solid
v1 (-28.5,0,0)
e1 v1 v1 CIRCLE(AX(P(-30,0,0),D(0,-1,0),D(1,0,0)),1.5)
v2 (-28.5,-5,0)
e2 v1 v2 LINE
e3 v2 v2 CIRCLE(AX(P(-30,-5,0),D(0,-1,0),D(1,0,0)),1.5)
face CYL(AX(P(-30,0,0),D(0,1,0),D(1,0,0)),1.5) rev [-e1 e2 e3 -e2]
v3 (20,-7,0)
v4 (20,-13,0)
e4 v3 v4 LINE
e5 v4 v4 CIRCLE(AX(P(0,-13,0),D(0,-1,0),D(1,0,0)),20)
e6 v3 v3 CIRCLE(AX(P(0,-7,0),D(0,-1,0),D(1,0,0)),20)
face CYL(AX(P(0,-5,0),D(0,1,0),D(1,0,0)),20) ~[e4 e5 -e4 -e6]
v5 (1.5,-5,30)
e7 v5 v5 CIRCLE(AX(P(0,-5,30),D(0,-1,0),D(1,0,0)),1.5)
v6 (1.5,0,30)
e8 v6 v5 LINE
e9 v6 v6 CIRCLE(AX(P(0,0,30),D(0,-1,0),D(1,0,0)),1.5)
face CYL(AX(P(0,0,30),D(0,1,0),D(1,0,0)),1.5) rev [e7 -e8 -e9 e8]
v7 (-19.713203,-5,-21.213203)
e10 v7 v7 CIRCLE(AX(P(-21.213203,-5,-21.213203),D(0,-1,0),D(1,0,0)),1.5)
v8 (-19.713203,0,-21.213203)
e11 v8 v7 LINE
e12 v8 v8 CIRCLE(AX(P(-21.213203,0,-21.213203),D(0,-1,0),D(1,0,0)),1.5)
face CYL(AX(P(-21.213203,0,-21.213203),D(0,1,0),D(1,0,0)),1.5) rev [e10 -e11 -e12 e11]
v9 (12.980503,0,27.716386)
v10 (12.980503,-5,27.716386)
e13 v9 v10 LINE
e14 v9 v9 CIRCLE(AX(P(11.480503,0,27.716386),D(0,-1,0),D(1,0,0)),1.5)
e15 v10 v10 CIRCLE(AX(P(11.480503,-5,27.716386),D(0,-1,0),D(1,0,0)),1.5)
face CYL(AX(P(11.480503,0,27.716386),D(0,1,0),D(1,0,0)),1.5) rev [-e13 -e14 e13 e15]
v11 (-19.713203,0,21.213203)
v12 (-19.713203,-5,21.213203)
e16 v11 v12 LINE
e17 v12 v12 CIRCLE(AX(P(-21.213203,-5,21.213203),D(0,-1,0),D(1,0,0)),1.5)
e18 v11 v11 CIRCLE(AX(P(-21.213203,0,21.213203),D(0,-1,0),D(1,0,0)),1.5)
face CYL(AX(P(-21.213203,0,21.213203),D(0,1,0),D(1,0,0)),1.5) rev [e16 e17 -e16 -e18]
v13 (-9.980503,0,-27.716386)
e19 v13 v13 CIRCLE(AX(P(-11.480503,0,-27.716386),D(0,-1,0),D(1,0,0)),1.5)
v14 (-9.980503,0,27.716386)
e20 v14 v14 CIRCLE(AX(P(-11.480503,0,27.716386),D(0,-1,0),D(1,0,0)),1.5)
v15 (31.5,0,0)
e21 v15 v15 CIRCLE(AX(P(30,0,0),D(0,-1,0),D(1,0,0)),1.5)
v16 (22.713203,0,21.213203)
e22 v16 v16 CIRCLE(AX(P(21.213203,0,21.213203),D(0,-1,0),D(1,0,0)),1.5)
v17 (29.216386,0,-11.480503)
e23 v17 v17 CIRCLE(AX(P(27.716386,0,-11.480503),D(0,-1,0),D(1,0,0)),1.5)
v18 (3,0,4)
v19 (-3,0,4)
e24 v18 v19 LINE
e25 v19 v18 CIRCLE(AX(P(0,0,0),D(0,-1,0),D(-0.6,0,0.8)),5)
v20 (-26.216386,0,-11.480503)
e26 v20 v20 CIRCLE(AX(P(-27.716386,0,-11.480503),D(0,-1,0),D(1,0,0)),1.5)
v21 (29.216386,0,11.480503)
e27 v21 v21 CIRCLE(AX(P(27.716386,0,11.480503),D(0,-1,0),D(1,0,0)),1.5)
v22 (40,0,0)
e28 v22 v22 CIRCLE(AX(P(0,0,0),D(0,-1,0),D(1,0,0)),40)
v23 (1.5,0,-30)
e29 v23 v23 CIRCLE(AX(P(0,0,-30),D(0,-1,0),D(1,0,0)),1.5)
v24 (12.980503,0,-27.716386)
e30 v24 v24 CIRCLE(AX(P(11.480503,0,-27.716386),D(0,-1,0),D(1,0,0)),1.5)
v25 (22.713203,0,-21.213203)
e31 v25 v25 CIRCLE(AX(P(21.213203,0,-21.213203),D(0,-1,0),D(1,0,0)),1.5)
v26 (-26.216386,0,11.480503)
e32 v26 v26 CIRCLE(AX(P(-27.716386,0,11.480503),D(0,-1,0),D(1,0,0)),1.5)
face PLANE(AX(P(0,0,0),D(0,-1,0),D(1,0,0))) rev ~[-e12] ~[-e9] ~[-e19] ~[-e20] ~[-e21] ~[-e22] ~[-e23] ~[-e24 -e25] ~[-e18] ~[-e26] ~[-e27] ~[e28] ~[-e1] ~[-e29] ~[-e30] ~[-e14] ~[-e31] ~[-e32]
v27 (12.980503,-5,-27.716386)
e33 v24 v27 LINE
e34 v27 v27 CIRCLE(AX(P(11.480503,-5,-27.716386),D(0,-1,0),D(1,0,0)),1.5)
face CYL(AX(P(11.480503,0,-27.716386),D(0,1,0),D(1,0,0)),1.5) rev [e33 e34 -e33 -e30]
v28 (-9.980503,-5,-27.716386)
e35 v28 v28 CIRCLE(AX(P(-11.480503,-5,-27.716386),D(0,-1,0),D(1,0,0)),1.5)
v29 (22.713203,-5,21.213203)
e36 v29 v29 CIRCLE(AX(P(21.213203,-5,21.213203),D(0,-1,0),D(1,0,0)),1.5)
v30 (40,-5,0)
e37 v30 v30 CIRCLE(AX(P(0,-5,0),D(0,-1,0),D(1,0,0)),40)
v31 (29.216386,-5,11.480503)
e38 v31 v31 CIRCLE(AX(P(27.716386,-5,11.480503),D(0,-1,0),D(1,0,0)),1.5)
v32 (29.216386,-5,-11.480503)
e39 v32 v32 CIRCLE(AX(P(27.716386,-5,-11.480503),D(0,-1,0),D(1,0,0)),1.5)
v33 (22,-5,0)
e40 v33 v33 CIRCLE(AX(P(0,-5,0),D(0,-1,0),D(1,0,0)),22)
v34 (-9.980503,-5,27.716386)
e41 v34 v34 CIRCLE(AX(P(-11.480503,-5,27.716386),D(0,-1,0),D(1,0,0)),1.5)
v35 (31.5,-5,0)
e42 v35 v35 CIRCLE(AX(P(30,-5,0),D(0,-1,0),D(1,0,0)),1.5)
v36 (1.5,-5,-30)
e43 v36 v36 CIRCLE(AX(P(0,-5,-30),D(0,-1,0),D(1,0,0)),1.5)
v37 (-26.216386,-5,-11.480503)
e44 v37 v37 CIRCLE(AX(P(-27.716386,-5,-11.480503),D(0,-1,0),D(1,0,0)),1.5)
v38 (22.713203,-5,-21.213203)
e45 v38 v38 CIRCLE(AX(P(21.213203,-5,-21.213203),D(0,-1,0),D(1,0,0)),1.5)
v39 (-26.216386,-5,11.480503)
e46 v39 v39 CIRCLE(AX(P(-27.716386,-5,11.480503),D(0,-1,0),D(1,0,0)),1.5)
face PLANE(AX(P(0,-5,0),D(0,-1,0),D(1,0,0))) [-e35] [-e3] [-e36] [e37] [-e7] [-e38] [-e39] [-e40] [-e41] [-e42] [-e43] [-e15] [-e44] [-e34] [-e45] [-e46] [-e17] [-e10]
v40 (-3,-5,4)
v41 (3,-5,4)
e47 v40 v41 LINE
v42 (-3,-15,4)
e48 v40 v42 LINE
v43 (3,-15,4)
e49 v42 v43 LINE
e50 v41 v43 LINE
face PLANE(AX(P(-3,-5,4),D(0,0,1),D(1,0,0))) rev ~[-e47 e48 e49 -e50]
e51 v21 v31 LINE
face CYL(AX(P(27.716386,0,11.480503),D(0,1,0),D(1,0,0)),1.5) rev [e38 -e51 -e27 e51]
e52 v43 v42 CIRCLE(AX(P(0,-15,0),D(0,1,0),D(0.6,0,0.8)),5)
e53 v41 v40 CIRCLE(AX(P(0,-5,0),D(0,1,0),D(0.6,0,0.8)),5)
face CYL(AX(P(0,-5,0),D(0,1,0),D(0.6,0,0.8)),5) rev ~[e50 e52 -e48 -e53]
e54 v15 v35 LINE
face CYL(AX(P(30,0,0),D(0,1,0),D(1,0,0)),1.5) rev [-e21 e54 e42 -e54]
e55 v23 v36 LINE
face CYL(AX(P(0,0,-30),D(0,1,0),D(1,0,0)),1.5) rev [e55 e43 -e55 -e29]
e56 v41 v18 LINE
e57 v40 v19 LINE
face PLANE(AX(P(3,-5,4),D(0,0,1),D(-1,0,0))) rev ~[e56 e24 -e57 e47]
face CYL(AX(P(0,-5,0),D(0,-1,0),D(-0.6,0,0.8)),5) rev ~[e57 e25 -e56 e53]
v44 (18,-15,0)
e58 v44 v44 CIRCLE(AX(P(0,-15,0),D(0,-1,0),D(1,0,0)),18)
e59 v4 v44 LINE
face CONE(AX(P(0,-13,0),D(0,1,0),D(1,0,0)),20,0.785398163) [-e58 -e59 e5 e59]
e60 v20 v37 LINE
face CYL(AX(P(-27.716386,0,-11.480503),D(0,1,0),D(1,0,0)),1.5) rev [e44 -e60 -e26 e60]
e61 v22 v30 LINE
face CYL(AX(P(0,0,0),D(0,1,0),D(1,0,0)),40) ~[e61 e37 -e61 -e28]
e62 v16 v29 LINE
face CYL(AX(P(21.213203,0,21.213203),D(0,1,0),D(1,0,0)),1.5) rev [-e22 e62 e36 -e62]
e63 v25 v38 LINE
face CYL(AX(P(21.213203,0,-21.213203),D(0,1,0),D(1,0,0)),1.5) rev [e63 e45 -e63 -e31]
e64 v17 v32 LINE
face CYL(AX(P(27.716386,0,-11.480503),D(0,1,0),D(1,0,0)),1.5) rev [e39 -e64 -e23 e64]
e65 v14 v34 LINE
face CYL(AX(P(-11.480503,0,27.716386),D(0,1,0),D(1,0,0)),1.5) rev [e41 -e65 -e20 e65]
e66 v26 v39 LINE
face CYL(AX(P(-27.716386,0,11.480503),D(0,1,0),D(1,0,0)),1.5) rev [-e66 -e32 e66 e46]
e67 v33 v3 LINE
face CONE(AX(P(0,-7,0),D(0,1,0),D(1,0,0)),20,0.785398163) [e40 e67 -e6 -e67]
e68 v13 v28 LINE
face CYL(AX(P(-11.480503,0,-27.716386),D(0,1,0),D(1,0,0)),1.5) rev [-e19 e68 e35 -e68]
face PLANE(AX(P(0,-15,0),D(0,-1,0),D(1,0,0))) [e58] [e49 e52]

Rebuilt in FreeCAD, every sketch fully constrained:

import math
import FreeCAD as App
import Part
import Sketcher

V = App.Vector


def edges_at(feature, points):
    """Names of the edges that pass closest to the given points."""
    edges = feature.Shape.Edges
    near = lambda p: min(range(len(edges)), key=lambda i: edges[i].distToShape(Part.Vertex(*p))[0])
    return sorted({f"Edge{near(p) + 1}" for p in points})

doc = App.newDocument("Part")
body = doc.addObject("PartDesign::Body", "Body")

# Sketch on XZ plane
sketch1 = doc.addObject("Sketcher::SketchObject", "Sketch")
body.addObject(sketch1)
sketch1.AttachmentSupport = (doc.XZ_Plane, [""])
sketch1.MapMode = "FlatFace"
sketch1.addGeometry(Part.Circle(V(0, 0, 0), V(0, 0, 1), 40), False)
sketch1.addGeometry(Part.Circle(V(-21.213203, -21.213203, 0), V(0, 0, 1), 1.5), False)
sketch1.addGeometry(Part.Circle(V(-11.480503, -27.716386, 0), V(0, 0, 1), 1.5), False)
sketch1.addGeometry(Part.Circle(V(-27.716386, -11.480503, 0), V(0, 0, 1), 1.5), False)
sketch1.addGeometry(Part.Circle(V(0, -30, 0), V(0, 0, 1), 1.5), False)
sketch1.addGeometry(Part.Circle(V(11.480503, -27.716386, 0), V(0, 0, 1), 1.5), False)
sketch1.addGeometry(Part.Circle(V(21.213203, -21.213203, 0), V(0, 0, 1), 1.5), False)
sketch1.addGeometry(Part.Circle(V(27.716386, -11.480503, 0), V(0, 0, 1), 1.5), False)
sketch1.addGeometry(Part.Circle(V(-30, 0, 0), V(0, 0, 1), 1.5), False)
sketch1.addGeometry(Part.Circle(V(-27.716386, 11.480503, 0), V(0, 0, 1), 1.5), False)
sketch1.addGeometry(Part.Circle(V(-21.213203, 21.213203, 0), V(0, 0, 1), 1.5), False)
sketch1.addGeometry(Part.Circle(V(-11.480503, 27.716386, 0), V(0, 0, 1), 1.5), False)
sketch1.addGeometry(Part.Circle(V(30, 0, 0), V(0, 0, 1), 1.5), False)
sketch1.addGeometry(Part.Circle(V(27.716386, 11.480503, 0), V(0, 0, 1), 1.5), False)
sketch1.addGeometry(Part.Circle(V(0, 30, 0), V(0, 0, 1), 1.5), False)
sketch1.addGeometry(Part.Circle(V(11.480503, 27.716386, 0), V(0, 0, 1), 1.5), False)
sketch1.addGeometry(Part.Circle(V(21.213203, 21.213203, 0), V(0, 0, 1), 1.5), False)
sketch1.addConstraint(Sketcher.Constraint("Coincident", 0, 3, -1, 1))
sketch1.addConstraint(Sketcher.Constraint("Equal", 1, 2))
sketch1.addConstraint(Sketcher.Constraint("Equal", 2, 3))
sketch1.addConstraint(Sketcher.Constraint("Equal", 3, 4))
sketch1.addConstraint(Sketcher.Constraint("Equal", 4, 5))
sketch1.addConstraint(Sketcher.Constraint("Equal", 5, 6))
sketch1.addConstraint(Sketcher.Constraint("Equal", 6, 7))
sketch1.addConstraint(Sketcher.Constraint("Equal", 7, 8))
sketch1.addConstraint(Sketcher.Constraint("Equal", 8, 9))
sketch1.addConstraint(Sketcher.Constraint("Equal", 9, 10))
sketch1.addConstraint(Sketcher.Constraint("Equal", 10, 11))
sketch1.addConstraint(Sketcher.Constraint("Equal", 11, 12))
sketch1.addConstraint(Sketcher.Constraint("Equal", 12, 13))
sketch1.addConstraint(Sketcher.Constraint("Equal", 13, 14))
sketch1.addConstraint(Sketcher.Constraint("Equal", 14, 15))
sketch1.addConstraint(Sketcher.Constraint("Equal", 15, 16))
sketch1.addConstraint(Sketcher.Constraint("Symmetric", 7, 3, 9, 3, -1, 1))
sketch1.addConstraint(Sketcher.Constraint("Symmetric", 6, 3, 10, 3, -1, 1))
sketch1.addConstraint(Sketcher.Constraint("Symmetric", 5, 3, 11, 3, -1, 1))
sketch1.addConstraint(Sketcher.Constraint("Symmetric", 8, 3, 12, 3, -1, 1))
sketch1.addConstraint(Sketcher.Constraint("Symmetric", 3, 3, 13, 3, -1, 1))
sketch1.addConstraint(Sketcher.Constraint("Symmetric", 4, 3, 14, 3, -1, 1))
sketch1.addConstraint(Sketcher.Constraint("Symmetric", 2, 3, 15, 3, -1, 1))
sketch1.addConstraint(Sketcher.Constraint("Symmetric", 1, 3, 16, 3, -1, 1))
sketch1.addConstraint(Sketcher.Constraint("Symmetric", 2, 3, 5, 3, -2))
sketch1.addConstraint(Sketcher.Constraint("Symmetric", 1, 3, 6, 3, -2))
sketch1.addConstraint(Sketcher.Constraint("Symmetric", 3, 3, 7, 3, -2))
sketch1.addConstraint(Sketcher.Constraint("PointOnObject", 4, 3, -2))
sketch1.addConstraint(Sketcher.Constraint("PointOnObject", 8, 3, -1))
sketch1.addConstraint(Sketcher.Constraint("Diameter", 0, 80.0))
sketch1.addConstraint(Sketcher.Constraint("Diameter", 1, 3.0))
sketch1.addConstraint(Sketcher.Constraint("DistanceY", 4, 3, -1, 1, 30.0))
sketch1.addConstraint(Sketcher.Constraint("DistanceX", 8, 3, -1, 1, 30.0))
sketch1.addConstraint(Sketcher.Constraint("DistanceX", 1, 3, 2, 3, 9.7327))
sketch1.addConstraint(Sketcher.Constraint("DistanceY", 1, 3, 3, 3, 9.7327))
sketch1.addConstraint(Sketcher.Constraint("DistanceX", 3, 3, 5, 3, 39.196889))
sketch1.addConstraint(Sketcher.Constraint("DistanceY", 2, 3, 9, 3, 39.196889))
sketch1.addConstraint(Sketcher.Constraint("DistanceX", 1, 3, -1, 1, 21.213203))
sketch1.addConstraint(Sketcher.Constraint("DistanceY", 1, 3, -1, 1, 21.213203))
pad1 = doc.addObject("PartDesign::Pad", "Pad")
body.addObject(pad1)
pad1.Profile = sketch1
pad1.Length = 5

# Sketch on XZ plane
sketch2 = doc.addObject("Sketcher::SketchObject", "Sketch001")
body.addObject(sketch2)
sketch2.AttachmentSupport = (doc.XZ_Plane, [""])
sketch2.MapMode = "FlatFace"
sketch2.AttachmentOffset = App.Placement(V(0, 0, 5), App.Rotation())
sketch2.addGeometry(Part.Circle(V(0, 0, 0), V(0, 0, 1), 20), False)
sketch2.addGeometry(Part.LineSegment(V(-3, 4, 0), V(3, 4, 0)), False)
sketch2.addGeometry(Part.ArcOfCircle(Part.Circle(V(0, 0, 0), V(0, 0, 1), 5), math.radians(126.869898), math.radians(413.130102)), False)
sketch2.addConstraint(Sketcher.Constraint("Coincident", 1, 1, 2, 1))
sketch2.addConstraint(Sketcher.Constraint("Coincident", 2, 2, 1, 2))
sketch2.addConstraint(Sketcher.Constraint("Horizontal", 1))
sketch2.addConstraint(Sketcher.Constraint("Coincident", 0, 3, -1, 1))
sketch2.addConstraint(Sketcher.Constraint("Coincident", 2, 3, -1, 1))
sketch2.addConstraint(Sketcher.Constraint("Diameter", 0, 40.0))
sketch2.addConstraint(Sketcher.Constraint("Radius", 2, 5.0))
sketch2.addConstraint(Sketcher.Constraint("DistanceX", 1, 1, 1, 2, 6.0))
pad2 = doc.addObject("PartDesign::Pad", "Pad001")
body.addObject(pad2)
pad2.Profile = sketch2
pad2.Length = 10

# Sketch on XZ plane
sketch3 = doc.addObject("Sketcher::SketchObject", "Sketch002")
body.addObject(sketch3)
sketch3.AttachmentSupport = (doc.XZ_Plane, [""])
sketch3.MapMode = "FlatFace"
sketch3.AttachmentOffset = App.Placement(V(0, 0, 5), App.Rotation())
sketch3.addGeometry(Part.ArcOfCircle(Part.Circle(V(0, 0, 0), V(0, 0, 1), 5), math.radians(126.869898), math.radians(413.130102)), False)
sketch3.addGeometry(Part.LineSegment(V(3, 4, 0), V(-3, 4, 0)), False)
sketch3.addConstraint(Sketcher.Constraint("Coincident", 0, 1, 1, 2))
sketch3.addConstraint(Sketcher.Constraint("Coincident", 1, 1, 0, 2))
sketch3.addConstraint(Sketcher.Constraint("Horizontal", 1))
sketch3.addConstraint(Sketcher.Constraint("Coincident", 0, 3, -1, 1))
sketch3.addConstraint(Sketcher.Constraint("Radius", 0, 5.0))
sketch3.addConstraint(Sketcher.Constraint("DistanceX", 1, 2, 1, 1, 6.0))
pocket1 = doc.addObject("PartDesign::Pocket", "Pocket")
body.addObject(pocket1)
pocket1.Profile = sketch3
pocket1.Type = "ThroughAll"
doc.recompute()

chamfer = doc.addObject("PartDesign::Chamfer", "Chamfer")
body.addObject(chamfer)
chamfer.Base = (pocket1, edges_at(pocket1, [(-20, -15, 0), (-20, -5, 0)]))
chamfer.Size = 2

doc.recompute()
